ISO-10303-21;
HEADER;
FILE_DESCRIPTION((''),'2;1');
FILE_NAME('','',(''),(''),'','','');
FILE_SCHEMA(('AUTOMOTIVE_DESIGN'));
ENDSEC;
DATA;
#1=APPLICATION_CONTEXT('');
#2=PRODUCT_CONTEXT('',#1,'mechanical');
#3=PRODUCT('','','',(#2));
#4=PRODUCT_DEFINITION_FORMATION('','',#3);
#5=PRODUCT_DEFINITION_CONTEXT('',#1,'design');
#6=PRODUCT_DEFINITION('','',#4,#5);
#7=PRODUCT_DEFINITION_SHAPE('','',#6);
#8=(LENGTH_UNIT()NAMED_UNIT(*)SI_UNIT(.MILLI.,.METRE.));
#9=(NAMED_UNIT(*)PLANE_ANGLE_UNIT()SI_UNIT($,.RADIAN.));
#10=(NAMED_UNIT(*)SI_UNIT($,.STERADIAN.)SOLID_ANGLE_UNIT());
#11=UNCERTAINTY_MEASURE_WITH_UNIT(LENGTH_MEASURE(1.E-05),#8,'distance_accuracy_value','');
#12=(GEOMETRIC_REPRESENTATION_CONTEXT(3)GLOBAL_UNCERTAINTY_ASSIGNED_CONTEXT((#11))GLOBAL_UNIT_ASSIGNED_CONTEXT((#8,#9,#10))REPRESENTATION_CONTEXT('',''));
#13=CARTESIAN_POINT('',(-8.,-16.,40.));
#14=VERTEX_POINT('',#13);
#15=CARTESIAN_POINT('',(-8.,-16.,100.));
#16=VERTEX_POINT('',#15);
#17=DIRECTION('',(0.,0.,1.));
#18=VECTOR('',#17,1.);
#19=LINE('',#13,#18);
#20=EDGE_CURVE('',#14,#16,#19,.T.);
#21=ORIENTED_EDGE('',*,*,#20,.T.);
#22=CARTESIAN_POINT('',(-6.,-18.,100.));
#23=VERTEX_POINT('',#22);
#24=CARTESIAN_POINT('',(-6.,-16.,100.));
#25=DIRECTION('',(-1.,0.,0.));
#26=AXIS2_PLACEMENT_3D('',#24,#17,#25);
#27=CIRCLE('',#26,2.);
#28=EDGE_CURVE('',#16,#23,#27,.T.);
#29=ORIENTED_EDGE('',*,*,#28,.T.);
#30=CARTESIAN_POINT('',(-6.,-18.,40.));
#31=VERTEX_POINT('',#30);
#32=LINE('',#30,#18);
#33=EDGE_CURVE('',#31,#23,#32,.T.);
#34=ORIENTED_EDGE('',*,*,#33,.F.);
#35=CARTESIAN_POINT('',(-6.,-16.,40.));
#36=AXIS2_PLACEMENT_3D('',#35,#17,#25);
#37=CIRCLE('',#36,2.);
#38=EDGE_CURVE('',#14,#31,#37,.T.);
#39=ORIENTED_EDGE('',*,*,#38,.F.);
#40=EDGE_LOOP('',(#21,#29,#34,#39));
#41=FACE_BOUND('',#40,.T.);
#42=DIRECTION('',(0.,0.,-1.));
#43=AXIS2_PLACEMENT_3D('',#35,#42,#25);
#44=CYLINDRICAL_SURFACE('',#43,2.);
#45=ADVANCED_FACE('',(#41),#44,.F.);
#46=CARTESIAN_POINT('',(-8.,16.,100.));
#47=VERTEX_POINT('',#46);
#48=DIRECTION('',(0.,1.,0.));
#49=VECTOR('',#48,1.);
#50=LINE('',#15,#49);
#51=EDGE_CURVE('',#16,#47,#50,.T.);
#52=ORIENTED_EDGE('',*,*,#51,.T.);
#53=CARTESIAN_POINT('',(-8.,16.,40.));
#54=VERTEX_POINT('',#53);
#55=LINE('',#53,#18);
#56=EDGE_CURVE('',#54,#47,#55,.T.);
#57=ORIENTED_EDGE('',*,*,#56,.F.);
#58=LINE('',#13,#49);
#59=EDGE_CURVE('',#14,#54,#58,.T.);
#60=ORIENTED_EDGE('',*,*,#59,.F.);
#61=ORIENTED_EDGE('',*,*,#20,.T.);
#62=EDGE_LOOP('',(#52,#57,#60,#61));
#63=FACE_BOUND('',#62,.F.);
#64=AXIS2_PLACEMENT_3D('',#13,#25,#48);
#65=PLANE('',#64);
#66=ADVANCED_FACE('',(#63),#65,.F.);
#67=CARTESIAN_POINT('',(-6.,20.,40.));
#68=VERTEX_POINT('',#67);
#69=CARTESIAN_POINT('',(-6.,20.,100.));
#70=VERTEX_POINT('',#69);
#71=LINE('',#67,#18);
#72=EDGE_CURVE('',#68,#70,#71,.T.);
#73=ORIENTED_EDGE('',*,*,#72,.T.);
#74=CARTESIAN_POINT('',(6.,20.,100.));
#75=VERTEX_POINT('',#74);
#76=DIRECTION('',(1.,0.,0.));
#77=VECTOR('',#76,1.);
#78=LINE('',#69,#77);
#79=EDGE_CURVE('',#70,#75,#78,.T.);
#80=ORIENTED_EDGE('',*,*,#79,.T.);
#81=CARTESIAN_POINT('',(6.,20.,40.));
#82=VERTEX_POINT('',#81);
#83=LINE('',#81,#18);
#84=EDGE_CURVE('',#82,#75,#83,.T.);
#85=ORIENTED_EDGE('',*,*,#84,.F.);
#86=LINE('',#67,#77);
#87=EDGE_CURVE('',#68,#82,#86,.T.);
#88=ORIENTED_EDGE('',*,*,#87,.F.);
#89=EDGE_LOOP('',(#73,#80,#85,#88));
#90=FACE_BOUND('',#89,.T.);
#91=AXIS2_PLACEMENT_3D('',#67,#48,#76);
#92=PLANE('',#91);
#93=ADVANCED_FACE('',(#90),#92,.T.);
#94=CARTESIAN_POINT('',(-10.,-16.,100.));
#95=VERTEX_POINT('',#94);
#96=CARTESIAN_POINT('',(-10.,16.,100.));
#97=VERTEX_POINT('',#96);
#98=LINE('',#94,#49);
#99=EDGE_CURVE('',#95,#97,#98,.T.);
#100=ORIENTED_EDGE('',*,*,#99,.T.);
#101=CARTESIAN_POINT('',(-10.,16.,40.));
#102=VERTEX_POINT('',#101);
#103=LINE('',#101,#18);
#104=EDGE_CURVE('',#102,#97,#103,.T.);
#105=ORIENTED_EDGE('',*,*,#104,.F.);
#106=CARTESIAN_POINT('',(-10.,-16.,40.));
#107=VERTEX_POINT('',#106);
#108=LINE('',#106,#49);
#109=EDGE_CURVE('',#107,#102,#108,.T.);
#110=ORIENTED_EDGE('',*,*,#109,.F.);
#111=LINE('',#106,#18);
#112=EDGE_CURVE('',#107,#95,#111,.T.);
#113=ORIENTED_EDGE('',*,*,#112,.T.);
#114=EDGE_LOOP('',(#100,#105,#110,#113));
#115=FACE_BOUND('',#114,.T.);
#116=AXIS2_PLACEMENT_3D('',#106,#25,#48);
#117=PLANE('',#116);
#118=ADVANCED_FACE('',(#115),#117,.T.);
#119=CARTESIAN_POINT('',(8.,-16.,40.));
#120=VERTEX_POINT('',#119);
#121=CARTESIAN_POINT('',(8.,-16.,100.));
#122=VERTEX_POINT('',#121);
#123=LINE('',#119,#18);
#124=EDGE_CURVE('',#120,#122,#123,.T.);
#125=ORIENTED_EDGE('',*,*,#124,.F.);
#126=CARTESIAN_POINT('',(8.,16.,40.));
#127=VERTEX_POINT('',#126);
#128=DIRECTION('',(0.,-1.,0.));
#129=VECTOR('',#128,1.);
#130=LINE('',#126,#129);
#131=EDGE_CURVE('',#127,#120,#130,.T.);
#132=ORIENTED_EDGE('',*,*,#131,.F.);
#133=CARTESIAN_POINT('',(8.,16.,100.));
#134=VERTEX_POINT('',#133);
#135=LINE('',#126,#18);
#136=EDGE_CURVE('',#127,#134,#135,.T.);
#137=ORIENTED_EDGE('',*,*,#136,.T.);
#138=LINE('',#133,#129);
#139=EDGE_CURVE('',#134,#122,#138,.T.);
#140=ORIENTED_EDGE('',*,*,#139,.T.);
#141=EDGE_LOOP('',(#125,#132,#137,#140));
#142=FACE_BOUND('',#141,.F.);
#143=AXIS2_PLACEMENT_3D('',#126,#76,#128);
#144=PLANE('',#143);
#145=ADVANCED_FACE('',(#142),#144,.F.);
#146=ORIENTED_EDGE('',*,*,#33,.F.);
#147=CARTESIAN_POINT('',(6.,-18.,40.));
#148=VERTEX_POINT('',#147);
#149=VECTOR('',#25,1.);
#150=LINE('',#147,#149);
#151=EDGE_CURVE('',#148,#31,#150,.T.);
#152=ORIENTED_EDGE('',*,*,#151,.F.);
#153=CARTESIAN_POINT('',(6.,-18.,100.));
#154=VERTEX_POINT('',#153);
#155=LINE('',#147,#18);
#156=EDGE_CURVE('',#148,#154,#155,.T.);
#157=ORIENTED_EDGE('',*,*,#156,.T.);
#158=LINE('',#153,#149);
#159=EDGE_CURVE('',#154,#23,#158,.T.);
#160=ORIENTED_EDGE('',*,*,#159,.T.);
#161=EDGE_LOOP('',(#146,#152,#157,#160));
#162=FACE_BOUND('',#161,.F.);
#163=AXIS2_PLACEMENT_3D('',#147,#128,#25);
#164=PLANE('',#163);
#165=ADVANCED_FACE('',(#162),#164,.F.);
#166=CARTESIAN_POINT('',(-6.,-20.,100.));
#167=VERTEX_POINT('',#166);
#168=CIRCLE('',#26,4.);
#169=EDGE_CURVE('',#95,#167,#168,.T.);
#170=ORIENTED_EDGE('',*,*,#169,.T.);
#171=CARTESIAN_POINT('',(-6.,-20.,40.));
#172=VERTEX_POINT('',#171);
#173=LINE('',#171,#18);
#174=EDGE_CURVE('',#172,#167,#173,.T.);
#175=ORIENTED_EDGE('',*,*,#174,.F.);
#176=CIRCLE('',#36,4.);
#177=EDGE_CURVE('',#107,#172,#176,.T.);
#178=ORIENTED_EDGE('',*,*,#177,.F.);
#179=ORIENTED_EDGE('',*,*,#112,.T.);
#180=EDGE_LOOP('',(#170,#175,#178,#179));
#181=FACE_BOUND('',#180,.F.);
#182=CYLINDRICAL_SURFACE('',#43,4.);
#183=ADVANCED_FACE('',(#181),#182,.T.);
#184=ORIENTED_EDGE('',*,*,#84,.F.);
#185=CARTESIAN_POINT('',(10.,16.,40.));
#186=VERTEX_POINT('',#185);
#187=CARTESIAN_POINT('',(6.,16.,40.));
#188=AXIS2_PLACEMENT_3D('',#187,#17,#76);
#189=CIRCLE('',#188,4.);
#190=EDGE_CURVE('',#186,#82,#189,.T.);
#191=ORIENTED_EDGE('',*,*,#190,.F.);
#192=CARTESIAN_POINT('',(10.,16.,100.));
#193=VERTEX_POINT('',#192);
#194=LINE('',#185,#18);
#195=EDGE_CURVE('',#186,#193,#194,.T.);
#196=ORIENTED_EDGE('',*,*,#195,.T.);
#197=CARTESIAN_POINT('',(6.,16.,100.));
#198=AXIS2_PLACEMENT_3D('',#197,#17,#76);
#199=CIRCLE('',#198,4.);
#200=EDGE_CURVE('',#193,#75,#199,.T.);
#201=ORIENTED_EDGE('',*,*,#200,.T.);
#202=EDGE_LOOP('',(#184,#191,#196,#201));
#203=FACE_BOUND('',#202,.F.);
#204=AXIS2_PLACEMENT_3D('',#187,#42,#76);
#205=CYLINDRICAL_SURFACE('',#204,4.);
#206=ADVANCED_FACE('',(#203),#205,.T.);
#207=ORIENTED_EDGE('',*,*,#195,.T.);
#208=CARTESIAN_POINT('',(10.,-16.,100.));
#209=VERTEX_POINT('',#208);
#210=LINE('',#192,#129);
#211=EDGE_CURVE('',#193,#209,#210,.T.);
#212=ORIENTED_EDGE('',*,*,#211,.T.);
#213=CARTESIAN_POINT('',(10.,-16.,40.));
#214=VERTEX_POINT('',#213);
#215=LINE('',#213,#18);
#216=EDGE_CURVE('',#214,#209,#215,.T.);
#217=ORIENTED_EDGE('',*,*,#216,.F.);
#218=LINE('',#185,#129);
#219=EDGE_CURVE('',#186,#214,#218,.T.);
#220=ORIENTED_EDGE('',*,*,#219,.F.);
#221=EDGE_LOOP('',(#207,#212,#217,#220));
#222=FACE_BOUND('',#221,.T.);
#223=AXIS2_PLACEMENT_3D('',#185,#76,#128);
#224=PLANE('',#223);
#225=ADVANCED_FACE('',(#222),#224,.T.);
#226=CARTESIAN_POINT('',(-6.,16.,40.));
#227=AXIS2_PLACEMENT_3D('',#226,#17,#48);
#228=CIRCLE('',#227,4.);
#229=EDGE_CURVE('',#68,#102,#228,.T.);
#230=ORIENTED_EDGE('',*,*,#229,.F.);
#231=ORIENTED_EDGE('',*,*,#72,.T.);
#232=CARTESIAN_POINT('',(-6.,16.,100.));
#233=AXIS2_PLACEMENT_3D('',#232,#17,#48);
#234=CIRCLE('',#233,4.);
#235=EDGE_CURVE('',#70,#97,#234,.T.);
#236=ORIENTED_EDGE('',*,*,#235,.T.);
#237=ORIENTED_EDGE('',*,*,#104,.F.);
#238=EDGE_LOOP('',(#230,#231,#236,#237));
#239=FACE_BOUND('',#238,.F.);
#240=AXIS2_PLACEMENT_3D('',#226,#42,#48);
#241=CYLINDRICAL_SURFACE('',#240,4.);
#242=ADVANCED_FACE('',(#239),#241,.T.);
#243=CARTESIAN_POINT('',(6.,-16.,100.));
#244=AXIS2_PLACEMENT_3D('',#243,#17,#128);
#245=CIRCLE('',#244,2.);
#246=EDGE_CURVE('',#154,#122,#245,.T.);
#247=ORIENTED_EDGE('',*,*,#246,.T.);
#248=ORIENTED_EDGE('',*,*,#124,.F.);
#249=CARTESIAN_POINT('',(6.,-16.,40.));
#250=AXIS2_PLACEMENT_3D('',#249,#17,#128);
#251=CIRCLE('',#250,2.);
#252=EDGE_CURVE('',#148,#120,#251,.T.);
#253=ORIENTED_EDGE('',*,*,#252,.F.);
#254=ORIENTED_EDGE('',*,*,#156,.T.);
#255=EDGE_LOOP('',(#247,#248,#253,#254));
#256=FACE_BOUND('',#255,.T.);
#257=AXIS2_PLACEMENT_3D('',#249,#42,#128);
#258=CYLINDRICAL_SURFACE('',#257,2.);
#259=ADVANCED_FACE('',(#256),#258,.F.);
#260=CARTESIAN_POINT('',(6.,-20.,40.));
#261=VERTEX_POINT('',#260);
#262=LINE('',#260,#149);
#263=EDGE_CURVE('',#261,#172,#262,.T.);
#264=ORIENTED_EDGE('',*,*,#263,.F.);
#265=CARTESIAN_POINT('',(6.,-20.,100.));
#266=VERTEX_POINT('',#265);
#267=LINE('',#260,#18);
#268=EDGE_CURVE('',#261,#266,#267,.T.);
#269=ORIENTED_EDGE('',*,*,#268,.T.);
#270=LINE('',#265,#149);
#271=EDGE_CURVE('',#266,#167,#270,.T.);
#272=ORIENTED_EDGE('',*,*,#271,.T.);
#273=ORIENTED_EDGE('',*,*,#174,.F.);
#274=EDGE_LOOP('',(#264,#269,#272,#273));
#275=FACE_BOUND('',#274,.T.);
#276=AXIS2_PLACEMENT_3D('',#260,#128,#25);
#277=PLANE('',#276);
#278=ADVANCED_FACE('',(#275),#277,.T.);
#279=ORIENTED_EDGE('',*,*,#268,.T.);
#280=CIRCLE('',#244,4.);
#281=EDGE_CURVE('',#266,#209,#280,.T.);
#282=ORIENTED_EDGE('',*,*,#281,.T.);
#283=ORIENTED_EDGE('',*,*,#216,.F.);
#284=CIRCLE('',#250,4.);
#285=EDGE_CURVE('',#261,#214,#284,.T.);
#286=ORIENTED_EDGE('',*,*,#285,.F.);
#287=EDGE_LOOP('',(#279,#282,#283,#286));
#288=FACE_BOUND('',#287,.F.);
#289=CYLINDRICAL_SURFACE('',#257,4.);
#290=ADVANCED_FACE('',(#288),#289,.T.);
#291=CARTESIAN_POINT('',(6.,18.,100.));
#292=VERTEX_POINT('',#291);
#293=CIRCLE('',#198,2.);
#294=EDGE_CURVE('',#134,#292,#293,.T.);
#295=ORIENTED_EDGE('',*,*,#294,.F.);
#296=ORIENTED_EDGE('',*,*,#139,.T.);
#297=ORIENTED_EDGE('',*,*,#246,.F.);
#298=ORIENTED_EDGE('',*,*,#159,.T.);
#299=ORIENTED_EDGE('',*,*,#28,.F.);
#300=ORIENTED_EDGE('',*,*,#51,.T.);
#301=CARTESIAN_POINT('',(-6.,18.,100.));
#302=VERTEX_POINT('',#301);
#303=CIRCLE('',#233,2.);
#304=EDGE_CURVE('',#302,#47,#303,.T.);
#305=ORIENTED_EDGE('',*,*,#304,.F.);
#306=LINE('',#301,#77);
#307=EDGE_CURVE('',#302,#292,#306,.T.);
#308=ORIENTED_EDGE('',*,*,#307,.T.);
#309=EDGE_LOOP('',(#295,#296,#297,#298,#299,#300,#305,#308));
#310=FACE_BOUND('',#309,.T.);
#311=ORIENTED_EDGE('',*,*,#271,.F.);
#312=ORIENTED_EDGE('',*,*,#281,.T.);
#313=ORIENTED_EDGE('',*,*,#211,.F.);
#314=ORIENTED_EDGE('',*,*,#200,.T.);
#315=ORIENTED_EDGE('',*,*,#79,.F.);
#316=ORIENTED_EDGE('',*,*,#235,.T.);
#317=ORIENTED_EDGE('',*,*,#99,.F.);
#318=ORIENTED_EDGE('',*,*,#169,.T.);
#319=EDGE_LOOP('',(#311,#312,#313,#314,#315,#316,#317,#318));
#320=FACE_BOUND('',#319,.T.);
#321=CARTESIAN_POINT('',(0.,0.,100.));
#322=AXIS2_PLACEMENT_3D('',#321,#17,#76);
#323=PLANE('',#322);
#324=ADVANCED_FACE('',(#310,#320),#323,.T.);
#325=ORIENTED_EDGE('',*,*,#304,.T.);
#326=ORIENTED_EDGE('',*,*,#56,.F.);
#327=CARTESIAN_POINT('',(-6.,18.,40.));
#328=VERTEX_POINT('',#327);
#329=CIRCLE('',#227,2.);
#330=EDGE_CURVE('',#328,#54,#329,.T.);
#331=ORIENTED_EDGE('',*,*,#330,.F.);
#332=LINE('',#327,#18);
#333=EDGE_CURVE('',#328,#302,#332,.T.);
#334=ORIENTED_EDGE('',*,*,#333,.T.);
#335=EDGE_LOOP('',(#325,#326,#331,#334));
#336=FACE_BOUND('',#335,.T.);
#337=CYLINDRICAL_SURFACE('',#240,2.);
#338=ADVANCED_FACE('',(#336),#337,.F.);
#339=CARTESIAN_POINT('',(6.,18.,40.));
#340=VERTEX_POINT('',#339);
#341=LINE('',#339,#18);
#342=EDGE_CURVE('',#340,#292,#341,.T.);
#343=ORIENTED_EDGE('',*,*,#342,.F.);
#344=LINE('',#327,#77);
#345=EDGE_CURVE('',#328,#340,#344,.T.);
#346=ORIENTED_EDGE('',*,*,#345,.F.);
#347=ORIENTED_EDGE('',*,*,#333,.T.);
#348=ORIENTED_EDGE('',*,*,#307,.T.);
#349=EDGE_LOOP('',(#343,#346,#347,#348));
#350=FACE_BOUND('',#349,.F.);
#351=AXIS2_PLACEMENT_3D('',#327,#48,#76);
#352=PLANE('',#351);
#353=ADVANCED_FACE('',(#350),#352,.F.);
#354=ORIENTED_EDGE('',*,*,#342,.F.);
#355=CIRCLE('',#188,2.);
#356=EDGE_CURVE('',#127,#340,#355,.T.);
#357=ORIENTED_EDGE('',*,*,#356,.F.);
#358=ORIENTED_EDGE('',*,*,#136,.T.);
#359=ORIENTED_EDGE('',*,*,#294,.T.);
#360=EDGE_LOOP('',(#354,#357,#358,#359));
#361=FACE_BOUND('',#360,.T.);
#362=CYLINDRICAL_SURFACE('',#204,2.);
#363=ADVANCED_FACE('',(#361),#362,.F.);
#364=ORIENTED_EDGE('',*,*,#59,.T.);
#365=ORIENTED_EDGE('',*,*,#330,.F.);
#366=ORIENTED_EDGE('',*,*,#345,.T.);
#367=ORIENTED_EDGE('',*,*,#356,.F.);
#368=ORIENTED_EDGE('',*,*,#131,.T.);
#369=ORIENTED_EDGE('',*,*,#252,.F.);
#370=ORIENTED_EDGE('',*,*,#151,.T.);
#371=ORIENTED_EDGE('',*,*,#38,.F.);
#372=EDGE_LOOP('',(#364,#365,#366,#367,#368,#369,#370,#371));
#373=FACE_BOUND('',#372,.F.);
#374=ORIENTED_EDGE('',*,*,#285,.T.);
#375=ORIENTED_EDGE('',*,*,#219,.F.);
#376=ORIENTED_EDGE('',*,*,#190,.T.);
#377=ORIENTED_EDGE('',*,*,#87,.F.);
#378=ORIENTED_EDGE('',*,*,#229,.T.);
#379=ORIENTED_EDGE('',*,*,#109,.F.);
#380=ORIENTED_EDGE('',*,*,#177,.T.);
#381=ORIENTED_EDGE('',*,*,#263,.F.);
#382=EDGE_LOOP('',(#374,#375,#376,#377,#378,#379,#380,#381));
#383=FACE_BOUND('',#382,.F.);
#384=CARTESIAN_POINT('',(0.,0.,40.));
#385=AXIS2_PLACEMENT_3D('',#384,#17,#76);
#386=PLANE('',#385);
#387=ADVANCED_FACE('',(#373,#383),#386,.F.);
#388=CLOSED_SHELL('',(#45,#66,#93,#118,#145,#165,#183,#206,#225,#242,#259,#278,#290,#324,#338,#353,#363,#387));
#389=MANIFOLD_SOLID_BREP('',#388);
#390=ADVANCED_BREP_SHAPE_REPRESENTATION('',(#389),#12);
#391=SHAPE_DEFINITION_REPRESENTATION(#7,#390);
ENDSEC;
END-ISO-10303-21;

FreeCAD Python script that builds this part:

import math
import FreeCAD as App
import Part
import Sketcher
Q = App.Units.Quantity

doc = App.newDocument("Part")
body = doc.addObject("PartDesign::Body", "Body")

# Sketch on XY plane
sketch1 = body.newObject("Sketcher::SketchObject", "Sketch")
sketch1.AttachmentSupport = (doc.getObject("XY_Plane"), [""])
sketch1.MapMode = "FlatFace"
sketch1.AttachmentOffset = App.Placement(App.Vector(0, 0, 40), App.Rotation())
sketch1.addGeometry(Part.LineSegment(App.Vector(-10, 16, 0), App.Vector(-10, -16, 0)), False)
sketch1.addGeometry(Part.ArcOfCircle(Part.Circle(App.Vector(-6, -16, 0), App.Vector(0, 0, 1), 4), math.radians(180), math.radians(270)), False)
sketch1.addGeometry(Part.LineSegment(App.Vector(-6, -20, 0), App.Vector(6, -20, 0)), False)
sketch1.addGeometry(Part.ArcOfCircle(Part.Circle(App.Vector(6, -16, 0), App.Vector(0, 0, 1), 4), math.radians(-90), math.radians(0)), False)
sketch1.addGeometry(Part.LineSegment(App.Vector(10, -16, 0), App.Vector(10, 16, 0)), False)
sketch1.addGeometry(Part.ArcOfCircle(Part.Circle(App.Vector(6, 16, 0), App.Vector(0, 0, 1), 4), math.radians(0), math.radians(90)), False)
sketch1.addGeometry(Part.LineSegment(App.Vector(6, 20, 0), App.Vector(-6, 20, 0)), False)
sketch1.addGeometry(Part.ArcOfCircle(Part.Circle(App.Vector(-6, 16, 0), App.Vector(0, 0, 1), 4), math.radians(90), math.radians(180)), False)
sketch1.addGeometry(Part.ArcOfCircle(Part.Circle(App.Vector(-6, 16, 0), App.Vector(0, 0, 1), 2), math.radians(90), math.radians(180)), False)
sketch1.addGeometry(Part.LineSegment(App.Vector(-6, 18, 0), App.Vector(6, 18, 0)), False)
sketch1.addGeometry(Part.ArcOfCircle(Part.Circle(App.Vector(6, 16, 0), App.Vector(0, 0, 1), 2), math.radians(0), math.radians(90)), False)
sketch1.addGeometry(Part.LineSegment(App.Vector(8, 16, 0), App.Vector(8, -16, 0)), False)
sketch1.addGeometry(Part.ArcOfCircle(Part.Circle(App.Vector(6, -16, 0), App.Vector(0, 0, 1), 2), math.radians(-90), math.radians(0)), False)
sketch1.addGeometry(Part.LineSegment(App.Vector(6, -18, 0), App.Vector(-6, -18, 0)), False)
sketch1.addGeometry(Part.ArcOfCircle(Part.Circle(App.Vector(-6, -16, 0), App.Vector(0, 0, 1), 2), math.radians(180), math.radians(270)), False)
sketch1.addGeometry(Part.LineSegment(App.Vector(-8, -16, 0), App.Vector(-8, 16, 0)), False)
sketch1.addConstraint(Sketcher.Constraint("Tangent", 0, 2, 1, 1))
sketch1.addConstraint(Sketcher.Constraint("Tangent", 1, 2, 2, 1))
sketch1.addConstraint(Sketcher.Constraint("Tangent", 2, 2, 3, 1))
sketch1.addConstraint(Sketcher.Constraint("Tangent", 3, 2, 4, 1))
sketch1.addConstraint(Sketcher.Constraint("Tangent", 4, 2, 5, 1))
sketch1.addConstraint(Sketcher.Constraint("Tangent", 5, 2, 6, 1))
sketch1.addConstraint(Sketcher.Constraint("Tangent", 6, 2, 7, 1))
sketch1.addConstraint(Sketcher.Constraint("Tangent", 7, 2, 0, 1))
sketch1.addConstraint(Sketcher.Constraint("Tangent", 8, 1, 9, 1))
sketch1.addConstraint(Sketcher.Constraint("Tangent", 9, 2, 10, 2))
sketch1.addConstraint(Sketcher.Constraint("Tangent", 10, 1, 11, 1))
sketch1.addConstraint(Sketcher.Constraint("Tangent", 11, 2, 12, 2))
sketch1.addConstraint(Sketcher.Constraint("Tangent", 12, 1, 13, 1))
sketch1.addConstraint(Sketcher.Constraint("Tangent", 13, 2, 14, 2))
sketch1.addConstraint(Sketcher.Constraint("Tangent", 14, 1, 15, 1))
sketch1.addConstraint(Sketcher.Constraint("Tangent", 15, 2, 8, 2))
sketch1.addConstraint(Sketcher.Constraint("Vertical", 0))
sketch1.addConstraint(Sketcher.Constraint("Horizontal", 2))
sketch1.addConstraint(Sketcher.Constraint("Vertical", 4))
sketch1.addConstraint(Sketcher.Constraint("Horizontal", 6))
sketch1.addConstraint(Sketcher.Constraint("Horizontal", 9))
sketch1.addConstraint(Sketcher.Constraint("Vertical", 11))
sketch1.addConstraint(Sketcher.Constraint("Horizontal", 13))
sketch1.addConstraint(Sketcher.Constraint("Vertical", 15))
sketch1.addConstraint(Sketcher.Constraint("Coincident", 8, 3, 7, 3))
sketch1.addConstraint(Sketcher.Constraint("Coincident", 10, 3, 5, 3))
sketch1.addConstraint(Sketcher.Constraint("Coincident", 12, 3, 3, 3))
sketch1.addConstraint(Sketcher.Constraint("Equal", 1, 3))
sketch1.addConstraint(Sketcher.Constraint("Equal", 3, 5))
sketch1.addConstraint(Sketcher.Constraint("Equal", 5, 7))
sketch1.addConstraint(Sketcher.Constraint("Equal", 12, 14))
sketch1.addConstraint(Sketcher.Constraint("Symmetric", 1, 3, 5, 3, -1, 1))
sketch1.addConstraint(Sketcher.Constraint("Radius", 1, Q("4 mm")))
sketch1.addConstraint(Sketcher.Constraint("Radius", 8, Q("2 mm")))
sketch1.addConstraint(Sketcher.Constraint("DistanceX", 0, 2, -1, 1, Q("10 mm")))
sketch1.addConstraint(Sketcher.Constraint("DistanceY", 1, 2, -1, 1, Q("20 mm")))
pad1 = body.newObject("PartDesign::Pad", "Pad")
pad1.Profile = sketch1
pad1.Length = 60

doc.recompute()
